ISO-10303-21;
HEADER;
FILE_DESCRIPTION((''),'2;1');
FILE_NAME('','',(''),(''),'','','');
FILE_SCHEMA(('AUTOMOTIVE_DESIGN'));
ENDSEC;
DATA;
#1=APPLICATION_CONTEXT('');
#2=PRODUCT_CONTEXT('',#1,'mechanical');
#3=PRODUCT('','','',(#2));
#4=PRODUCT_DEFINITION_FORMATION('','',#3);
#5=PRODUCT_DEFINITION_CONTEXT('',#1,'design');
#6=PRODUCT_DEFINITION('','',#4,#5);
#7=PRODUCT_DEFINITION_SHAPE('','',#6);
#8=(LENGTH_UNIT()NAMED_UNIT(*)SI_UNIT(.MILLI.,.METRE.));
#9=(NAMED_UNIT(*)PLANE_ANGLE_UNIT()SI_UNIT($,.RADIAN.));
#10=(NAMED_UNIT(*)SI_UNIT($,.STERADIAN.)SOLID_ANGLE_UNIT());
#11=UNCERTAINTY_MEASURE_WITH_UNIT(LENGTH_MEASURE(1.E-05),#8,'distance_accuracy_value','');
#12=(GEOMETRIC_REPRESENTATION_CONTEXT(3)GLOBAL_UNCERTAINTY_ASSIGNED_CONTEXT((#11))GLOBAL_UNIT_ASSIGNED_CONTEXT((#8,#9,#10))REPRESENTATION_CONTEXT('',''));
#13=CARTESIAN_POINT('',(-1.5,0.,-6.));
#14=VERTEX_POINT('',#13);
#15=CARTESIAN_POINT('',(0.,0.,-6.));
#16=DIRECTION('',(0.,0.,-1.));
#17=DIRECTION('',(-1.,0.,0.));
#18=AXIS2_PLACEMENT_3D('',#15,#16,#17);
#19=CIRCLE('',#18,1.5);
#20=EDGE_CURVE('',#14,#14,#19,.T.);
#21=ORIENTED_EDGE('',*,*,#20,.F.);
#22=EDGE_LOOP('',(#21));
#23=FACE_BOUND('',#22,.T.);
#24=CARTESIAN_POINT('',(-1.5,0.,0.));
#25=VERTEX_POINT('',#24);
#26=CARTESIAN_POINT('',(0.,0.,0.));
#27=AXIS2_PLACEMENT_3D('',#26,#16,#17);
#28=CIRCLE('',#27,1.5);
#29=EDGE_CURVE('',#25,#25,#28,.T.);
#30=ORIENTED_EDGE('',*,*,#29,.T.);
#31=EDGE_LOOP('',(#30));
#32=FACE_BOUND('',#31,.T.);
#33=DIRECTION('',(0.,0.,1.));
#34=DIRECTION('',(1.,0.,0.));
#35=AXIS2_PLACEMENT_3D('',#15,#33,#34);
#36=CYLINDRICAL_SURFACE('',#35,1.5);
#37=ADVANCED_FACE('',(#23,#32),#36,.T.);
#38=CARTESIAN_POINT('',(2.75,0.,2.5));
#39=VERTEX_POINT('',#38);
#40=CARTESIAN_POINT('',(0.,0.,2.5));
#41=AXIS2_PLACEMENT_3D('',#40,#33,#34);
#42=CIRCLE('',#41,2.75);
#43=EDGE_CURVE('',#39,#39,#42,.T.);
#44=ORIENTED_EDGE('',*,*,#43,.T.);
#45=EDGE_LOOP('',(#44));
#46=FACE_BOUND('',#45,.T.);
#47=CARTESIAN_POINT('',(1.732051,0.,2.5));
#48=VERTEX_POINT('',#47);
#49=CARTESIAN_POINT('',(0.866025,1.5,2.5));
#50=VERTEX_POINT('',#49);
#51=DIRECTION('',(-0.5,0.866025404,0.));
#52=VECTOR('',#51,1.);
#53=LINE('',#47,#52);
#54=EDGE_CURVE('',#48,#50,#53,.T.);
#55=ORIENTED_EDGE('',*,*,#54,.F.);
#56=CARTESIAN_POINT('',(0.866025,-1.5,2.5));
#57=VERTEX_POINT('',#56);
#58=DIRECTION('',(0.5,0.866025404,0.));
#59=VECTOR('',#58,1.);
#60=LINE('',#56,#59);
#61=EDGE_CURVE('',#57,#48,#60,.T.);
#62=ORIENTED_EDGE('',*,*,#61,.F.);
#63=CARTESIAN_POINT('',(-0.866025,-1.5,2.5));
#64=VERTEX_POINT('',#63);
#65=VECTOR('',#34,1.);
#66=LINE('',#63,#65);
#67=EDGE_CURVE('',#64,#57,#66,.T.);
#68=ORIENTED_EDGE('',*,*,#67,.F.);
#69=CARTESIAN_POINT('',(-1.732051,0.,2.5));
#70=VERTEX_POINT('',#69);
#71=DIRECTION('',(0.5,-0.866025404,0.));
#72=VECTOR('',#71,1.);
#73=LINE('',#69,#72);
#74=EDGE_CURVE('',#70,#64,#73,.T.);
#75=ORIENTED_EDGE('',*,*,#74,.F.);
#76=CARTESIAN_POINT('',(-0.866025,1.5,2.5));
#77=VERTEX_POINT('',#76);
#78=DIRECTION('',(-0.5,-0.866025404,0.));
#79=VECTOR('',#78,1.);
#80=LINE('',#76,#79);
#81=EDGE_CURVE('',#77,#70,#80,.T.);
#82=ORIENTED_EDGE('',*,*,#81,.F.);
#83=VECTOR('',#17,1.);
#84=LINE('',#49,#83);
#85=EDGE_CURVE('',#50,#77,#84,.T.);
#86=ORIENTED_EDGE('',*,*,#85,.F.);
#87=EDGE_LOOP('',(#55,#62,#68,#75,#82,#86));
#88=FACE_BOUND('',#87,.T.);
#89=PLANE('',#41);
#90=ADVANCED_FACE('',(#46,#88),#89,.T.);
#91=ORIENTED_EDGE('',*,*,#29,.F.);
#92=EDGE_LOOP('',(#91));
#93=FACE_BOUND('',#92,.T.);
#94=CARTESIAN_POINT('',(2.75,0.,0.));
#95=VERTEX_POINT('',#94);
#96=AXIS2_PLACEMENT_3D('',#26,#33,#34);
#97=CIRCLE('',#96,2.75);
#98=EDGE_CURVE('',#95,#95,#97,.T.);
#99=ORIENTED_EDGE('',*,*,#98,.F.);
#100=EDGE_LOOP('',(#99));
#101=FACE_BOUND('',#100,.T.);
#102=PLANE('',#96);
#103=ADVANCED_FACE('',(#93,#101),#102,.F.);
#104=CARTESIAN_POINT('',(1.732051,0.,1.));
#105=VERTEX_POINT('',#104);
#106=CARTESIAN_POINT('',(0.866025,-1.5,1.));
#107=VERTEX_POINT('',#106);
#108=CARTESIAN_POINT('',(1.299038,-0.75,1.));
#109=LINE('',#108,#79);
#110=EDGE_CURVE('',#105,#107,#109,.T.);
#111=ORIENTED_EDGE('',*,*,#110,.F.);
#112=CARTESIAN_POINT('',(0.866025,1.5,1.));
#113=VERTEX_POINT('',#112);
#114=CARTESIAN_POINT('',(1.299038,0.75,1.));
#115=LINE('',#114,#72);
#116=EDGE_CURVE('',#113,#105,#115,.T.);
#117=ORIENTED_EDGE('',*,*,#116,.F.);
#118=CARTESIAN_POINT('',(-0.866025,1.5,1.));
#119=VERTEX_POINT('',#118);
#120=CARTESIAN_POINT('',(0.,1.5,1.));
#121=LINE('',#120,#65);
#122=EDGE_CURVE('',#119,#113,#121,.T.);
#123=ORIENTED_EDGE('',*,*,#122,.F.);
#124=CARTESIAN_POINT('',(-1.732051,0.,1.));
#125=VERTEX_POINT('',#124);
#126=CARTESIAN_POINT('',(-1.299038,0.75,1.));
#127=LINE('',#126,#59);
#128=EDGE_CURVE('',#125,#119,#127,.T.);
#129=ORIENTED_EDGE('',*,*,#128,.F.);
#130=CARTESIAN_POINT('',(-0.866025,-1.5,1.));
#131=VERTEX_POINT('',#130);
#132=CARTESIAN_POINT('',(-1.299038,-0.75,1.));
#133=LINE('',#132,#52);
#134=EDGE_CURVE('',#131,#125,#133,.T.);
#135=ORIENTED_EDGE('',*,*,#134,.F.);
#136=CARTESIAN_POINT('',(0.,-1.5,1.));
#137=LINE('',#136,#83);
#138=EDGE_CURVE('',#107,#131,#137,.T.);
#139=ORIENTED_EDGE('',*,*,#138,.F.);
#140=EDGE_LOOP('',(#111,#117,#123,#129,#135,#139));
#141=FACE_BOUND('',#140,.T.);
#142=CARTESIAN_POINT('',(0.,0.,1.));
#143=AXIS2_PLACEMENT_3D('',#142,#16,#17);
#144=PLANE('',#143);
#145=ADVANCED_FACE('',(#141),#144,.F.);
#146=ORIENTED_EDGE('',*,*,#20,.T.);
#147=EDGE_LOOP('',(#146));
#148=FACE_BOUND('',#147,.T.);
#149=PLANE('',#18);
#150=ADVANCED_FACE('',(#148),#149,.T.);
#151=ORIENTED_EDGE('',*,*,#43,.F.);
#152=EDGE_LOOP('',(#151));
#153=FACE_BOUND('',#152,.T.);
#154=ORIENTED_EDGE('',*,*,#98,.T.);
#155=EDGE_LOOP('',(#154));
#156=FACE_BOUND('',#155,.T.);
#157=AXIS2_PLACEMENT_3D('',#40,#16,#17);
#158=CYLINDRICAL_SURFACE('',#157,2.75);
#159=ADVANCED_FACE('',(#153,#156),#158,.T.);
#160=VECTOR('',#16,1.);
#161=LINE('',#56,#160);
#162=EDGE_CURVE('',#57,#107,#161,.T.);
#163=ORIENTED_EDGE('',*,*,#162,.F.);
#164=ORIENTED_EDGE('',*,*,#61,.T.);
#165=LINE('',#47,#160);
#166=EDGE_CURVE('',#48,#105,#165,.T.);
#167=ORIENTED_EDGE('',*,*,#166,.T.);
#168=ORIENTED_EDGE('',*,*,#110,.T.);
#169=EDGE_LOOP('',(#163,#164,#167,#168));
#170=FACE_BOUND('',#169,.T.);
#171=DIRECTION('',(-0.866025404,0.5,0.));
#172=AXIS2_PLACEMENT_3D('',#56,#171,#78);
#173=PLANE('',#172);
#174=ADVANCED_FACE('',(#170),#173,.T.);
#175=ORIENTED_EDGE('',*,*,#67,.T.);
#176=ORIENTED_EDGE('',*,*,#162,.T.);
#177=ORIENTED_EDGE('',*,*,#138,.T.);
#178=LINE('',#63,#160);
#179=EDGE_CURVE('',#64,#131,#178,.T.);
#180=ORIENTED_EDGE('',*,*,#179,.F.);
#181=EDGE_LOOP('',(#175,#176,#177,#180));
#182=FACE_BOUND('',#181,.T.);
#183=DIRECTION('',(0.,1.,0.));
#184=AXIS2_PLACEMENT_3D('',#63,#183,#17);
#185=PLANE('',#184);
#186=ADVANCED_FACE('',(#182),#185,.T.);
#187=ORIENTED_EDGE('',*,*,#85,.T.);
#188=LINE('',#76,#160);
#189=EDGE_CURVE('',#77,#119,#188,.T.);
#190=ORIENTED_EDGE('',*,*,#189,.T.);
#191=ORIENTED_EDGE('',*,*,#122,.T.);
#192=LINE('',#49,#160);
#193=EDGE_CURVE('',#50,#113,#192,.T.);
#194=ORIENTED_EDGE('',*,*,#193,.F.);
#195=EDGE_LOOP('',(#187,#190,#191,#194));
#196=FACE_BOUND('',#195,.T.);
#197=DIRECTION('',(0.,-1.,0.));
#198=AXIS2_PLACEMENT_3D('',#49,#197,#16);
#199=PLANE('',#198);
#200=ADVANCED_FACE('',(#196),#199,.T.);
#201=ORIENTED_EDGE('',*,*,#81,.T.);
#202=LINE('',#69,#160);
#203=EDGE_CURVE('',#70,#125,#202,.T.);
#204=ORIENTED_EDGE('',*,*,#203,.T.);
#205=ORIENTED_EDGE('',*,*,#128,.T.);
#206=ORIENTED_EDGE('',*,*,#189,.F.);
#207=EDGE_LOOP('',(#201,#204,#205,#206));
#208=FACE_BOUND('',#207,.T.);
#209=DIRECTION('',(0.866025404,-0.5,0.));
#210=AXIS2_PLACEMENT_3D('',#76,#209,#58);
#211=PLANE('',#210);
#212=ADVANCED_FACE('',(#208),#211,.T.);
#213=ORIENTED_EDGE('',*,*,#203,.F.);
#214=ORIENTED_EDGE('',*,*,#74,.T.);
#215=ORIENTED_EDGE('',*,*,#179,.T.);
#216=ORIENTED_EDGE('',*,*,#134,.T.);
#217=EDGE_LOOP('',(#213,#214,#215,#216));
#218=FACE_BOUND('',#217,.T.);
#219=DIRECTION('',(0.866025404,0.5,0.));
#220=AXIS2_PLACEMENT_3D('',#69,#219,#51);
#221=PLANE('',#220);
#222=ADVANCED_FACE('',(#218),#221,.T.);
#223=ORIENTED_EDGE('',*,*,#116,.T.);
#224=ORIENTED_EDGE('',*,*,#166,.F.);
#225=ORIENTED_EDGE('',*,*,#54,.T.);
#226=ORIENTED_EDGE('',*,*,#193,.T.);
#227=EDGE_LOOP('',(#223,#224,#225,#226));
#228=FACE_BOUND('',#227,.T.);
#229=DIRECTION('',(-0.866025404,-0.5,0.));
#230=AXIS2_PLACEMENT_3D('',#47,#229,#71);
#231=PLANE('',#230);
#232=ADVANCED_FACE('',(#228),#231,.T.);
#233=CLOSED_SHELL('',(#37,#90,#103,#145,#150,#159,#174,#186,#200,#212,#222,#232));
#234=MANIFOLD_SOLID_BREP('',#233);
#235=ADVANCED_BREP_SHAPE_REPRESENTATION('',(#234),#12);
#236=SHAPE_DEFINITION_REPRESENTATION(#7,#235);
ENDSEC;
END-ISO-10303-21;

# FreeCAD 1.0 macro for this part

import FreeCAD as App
import Part
import Sketcher
from FreeCAD import Vector
Q = App.Units.Quantity

doc = App.newDocument("Part")
params = doc.addObject("Spreadsheet::Sheet", "Params")
for row, (alias, value) in enumerate([
    ("sketch1_diameter", "5.5 mm"),
    ("pad1_length", "2.5 mm"),
    ("sketch2_diameter", "3 mm"),
    ("pad2_length", "6 mm"),
    ("pad3_length", "1 mm"),
], start=1):
    params.set(f"A{row}", alias)
    params.set(f"B{row}", "=" + value)
    params.setAlias(f"B{row}", alias)

body = doc.addObject("PartDesign::Body", "Body")

sketch1 = body.newObject("Sketcher::SketchObject", "Sketch")
sketch1.AttachmentSupport = (doc.getObject("XY_Plane"), [""])
sketch1.MapMode = "FlatFace"
sketch1.addGeometry([
    Part.Circle(Vector(0, 0, 0), Vector(0, 0, 1), 2.8),
    Part.LineSegment(Vector(0.9, 1.5, 0), Vector(1.7, 0, 0)),
    Part.LineSegment(Vector(1.7, 0, 0), Vector(0.9, -1.5, 0)),
    Part.LineSegment(Vector(0.9, -1.5, 0), Vector(-0.9, -1.5, 0)),
    Part.LineSegment(Vector(-0.9, -1.5, 0), Vector(-1.7, 0, 0)),
    Part.LineSegment(Vector(-1.7, 0, 0), Vector(-0.9, 1.5, 0)),
    Part.LineSegment(Vector(-0.9, 1.5, 0), Vector(0.9, 1.5, 0)),
], False)
sketch1.addConstraint([
    Sketcher.Constraint("Coincident", 1, 2, 2, 1),
    Sketcher.Constraint("Coincident", 2, 2, 3, 1),
    Sketcher.Constraint("Coincident", 3, 2, 4, 1),
    Sketcher.Constraint("Coincident", 4, 2, 5, 1),
    Sketcher.Constraint("Coincident", 5, 2, 6, 1),
    Sketcher.Constraint("Coincident", 6, 2, 1, 1),
    Sketcher.Constraint("Horizontal", 3),
    Sketcher.Constraint("Horizontal", 6),
    Sketcher.Constraint("Coincident", 0, 3, -1, 1),
    Sketcher.Constraint("Symmetric", 1, 2, 4, 2, -1, 1),
    Sketcher.Constraint("Symmetric", 2, 2, 5, 2, -1, 1),
    Sketcher.Constraint("PointOnObject", 1, 2, -1),
    Sketcher.Constraint("Parallel", 1, 4),
    Sketcher.Constraint("Vertical", 3, 2, 5, 2),
    Sketcher.Constraint("Diameter", 0, 5.5),
    Sketcher.Constraint("Angle", 1, Q("-60 deg")),
    Sketcher.Constraint("DistanceY", 3, 2, 5, 2, 3.0),
    Sketcher.Constraint("DistanceX", 3, 2, 3, 1, 1.732051),
])
sketch1.setExpression("Constraints[14]", "Params.sketch1_diameter")
pad1 = body.newObject("PartDesign::Pad", "Pad")
pad1.Profile = sketch1
pad1.setExpression("Length", "Params.pad1_length")
body2 = doc.addObject("PartDesign::Body", "Body001")

sketch2 = body2.newObject("Sketcher::SketchObject", "Sketch001")
sketch2.AttachmentSupport = (doc.getObject("XY_Plane001"), [""])
sketch2.MapMode = "FlatFace"
sketch2.addGeometry(Part.Circle(Vector(0, 0, 0), Vector(0, 0, 1), 1.5), False)
sketch2.addConstraint([
    Sketcher.Constraint("Coincident", 0, 3, -1, 1),
    Sketcher.Constraint("Diameter", 0, 3.0),
])
sketch2.setExpression("Constraints[1]", "Params.sketch2_diameter")
pad2 = body2.newObject("PartDesign::Pad", "Pad001")
pad2.Profile = sketch2
pad2.setExpression("Length", "Params.pad2_length")
pad2.Reversed = True
body.AllowCompound = True
doc.recompute()

boolean = body.newObject("PartDesign::Boolean", "Boolean")
boolean.Type = "Fuse"
boolean.addObjects([body2])

sketch3 = body.newObject("Sketcher::SketchObject", "Sketch002")
sketch3.AttachmentSupport = (doc.getObject("XY_Plane"), [""])
sketch3.MapMode = "FlatFace"
sketch3.addGeometry([
    Part.LineSegment(Vector(-0.9, -1.5, 0), Vector(0.9, -1.5, 0)),
    Part.LineSegment(Vector(0.9, -1.5, 0), Vector(1.7, 0, 0)),
    Part.LineSegment(Vector(1.7, 0, 0), Vector(0.9, 1.5, 0)),
    Part.LineSegment(Vector(0.9, 1.5, 0), Vector(-0.9, 1.5, 0)),
    Part.LineSegment(Vector(-0.9, 1.5, 0), Vector(-1.7, 0, 0)),
    Part.LineSegment(Vector(-1.7, 0, 0), Vector(-0.9, -1.5, 0)),
], False)
sketch3.addConstraint([
    Sketcher.Constraint("Coincident", 0, 2, 1, 1),
    Sketcher.Constraint("Coincident", 1, 2, 2, 1),
    Sketcher.Constraint("Coincident", 2, 2, 3, 1),
    Sketcher.Constraint("Coincident", 3, 2, 4, 1),
    Sketcher.Constraint("Coincident", 4, 2, 5, 1),
    Sketcher.Constraint("Coincident", 5, 2, 0, 1),
    Sketcher.Constraint("Horizontal", 0),
    Sketcher.Constraint("Horizontal", 3),
    Sketcher.Constraint("Symmetric", 0, 2, 3, 2, -1, 1),
    Sketcher.Constraint("Symmetric", 1, 2, 4, 2, -1, 1),
    Sketcher.Constraint("PointOnObject", 1, 2, -1),
    Sketcher.Constraint("Parallel", 2, 5),
    Sketcher.Constraint("Vertical", 0, 2, 2, 2),
    Sketcher.Constraint("Angle", 1, Q("60 deg")),
    Sketcher.Constraint("DistanceY", 0, 2, 2, 2, 3.0),
    Sketcher.Constraint("DistanceX", 0, 1, 0, 2, 1.732051),
])
pad3 = body.newObject("PartDesign::Pad", "Pad002")
pad3.Profile = sketch3
pad3.setExpression("Length", "Params.pad3_length")

doc.recompute()
